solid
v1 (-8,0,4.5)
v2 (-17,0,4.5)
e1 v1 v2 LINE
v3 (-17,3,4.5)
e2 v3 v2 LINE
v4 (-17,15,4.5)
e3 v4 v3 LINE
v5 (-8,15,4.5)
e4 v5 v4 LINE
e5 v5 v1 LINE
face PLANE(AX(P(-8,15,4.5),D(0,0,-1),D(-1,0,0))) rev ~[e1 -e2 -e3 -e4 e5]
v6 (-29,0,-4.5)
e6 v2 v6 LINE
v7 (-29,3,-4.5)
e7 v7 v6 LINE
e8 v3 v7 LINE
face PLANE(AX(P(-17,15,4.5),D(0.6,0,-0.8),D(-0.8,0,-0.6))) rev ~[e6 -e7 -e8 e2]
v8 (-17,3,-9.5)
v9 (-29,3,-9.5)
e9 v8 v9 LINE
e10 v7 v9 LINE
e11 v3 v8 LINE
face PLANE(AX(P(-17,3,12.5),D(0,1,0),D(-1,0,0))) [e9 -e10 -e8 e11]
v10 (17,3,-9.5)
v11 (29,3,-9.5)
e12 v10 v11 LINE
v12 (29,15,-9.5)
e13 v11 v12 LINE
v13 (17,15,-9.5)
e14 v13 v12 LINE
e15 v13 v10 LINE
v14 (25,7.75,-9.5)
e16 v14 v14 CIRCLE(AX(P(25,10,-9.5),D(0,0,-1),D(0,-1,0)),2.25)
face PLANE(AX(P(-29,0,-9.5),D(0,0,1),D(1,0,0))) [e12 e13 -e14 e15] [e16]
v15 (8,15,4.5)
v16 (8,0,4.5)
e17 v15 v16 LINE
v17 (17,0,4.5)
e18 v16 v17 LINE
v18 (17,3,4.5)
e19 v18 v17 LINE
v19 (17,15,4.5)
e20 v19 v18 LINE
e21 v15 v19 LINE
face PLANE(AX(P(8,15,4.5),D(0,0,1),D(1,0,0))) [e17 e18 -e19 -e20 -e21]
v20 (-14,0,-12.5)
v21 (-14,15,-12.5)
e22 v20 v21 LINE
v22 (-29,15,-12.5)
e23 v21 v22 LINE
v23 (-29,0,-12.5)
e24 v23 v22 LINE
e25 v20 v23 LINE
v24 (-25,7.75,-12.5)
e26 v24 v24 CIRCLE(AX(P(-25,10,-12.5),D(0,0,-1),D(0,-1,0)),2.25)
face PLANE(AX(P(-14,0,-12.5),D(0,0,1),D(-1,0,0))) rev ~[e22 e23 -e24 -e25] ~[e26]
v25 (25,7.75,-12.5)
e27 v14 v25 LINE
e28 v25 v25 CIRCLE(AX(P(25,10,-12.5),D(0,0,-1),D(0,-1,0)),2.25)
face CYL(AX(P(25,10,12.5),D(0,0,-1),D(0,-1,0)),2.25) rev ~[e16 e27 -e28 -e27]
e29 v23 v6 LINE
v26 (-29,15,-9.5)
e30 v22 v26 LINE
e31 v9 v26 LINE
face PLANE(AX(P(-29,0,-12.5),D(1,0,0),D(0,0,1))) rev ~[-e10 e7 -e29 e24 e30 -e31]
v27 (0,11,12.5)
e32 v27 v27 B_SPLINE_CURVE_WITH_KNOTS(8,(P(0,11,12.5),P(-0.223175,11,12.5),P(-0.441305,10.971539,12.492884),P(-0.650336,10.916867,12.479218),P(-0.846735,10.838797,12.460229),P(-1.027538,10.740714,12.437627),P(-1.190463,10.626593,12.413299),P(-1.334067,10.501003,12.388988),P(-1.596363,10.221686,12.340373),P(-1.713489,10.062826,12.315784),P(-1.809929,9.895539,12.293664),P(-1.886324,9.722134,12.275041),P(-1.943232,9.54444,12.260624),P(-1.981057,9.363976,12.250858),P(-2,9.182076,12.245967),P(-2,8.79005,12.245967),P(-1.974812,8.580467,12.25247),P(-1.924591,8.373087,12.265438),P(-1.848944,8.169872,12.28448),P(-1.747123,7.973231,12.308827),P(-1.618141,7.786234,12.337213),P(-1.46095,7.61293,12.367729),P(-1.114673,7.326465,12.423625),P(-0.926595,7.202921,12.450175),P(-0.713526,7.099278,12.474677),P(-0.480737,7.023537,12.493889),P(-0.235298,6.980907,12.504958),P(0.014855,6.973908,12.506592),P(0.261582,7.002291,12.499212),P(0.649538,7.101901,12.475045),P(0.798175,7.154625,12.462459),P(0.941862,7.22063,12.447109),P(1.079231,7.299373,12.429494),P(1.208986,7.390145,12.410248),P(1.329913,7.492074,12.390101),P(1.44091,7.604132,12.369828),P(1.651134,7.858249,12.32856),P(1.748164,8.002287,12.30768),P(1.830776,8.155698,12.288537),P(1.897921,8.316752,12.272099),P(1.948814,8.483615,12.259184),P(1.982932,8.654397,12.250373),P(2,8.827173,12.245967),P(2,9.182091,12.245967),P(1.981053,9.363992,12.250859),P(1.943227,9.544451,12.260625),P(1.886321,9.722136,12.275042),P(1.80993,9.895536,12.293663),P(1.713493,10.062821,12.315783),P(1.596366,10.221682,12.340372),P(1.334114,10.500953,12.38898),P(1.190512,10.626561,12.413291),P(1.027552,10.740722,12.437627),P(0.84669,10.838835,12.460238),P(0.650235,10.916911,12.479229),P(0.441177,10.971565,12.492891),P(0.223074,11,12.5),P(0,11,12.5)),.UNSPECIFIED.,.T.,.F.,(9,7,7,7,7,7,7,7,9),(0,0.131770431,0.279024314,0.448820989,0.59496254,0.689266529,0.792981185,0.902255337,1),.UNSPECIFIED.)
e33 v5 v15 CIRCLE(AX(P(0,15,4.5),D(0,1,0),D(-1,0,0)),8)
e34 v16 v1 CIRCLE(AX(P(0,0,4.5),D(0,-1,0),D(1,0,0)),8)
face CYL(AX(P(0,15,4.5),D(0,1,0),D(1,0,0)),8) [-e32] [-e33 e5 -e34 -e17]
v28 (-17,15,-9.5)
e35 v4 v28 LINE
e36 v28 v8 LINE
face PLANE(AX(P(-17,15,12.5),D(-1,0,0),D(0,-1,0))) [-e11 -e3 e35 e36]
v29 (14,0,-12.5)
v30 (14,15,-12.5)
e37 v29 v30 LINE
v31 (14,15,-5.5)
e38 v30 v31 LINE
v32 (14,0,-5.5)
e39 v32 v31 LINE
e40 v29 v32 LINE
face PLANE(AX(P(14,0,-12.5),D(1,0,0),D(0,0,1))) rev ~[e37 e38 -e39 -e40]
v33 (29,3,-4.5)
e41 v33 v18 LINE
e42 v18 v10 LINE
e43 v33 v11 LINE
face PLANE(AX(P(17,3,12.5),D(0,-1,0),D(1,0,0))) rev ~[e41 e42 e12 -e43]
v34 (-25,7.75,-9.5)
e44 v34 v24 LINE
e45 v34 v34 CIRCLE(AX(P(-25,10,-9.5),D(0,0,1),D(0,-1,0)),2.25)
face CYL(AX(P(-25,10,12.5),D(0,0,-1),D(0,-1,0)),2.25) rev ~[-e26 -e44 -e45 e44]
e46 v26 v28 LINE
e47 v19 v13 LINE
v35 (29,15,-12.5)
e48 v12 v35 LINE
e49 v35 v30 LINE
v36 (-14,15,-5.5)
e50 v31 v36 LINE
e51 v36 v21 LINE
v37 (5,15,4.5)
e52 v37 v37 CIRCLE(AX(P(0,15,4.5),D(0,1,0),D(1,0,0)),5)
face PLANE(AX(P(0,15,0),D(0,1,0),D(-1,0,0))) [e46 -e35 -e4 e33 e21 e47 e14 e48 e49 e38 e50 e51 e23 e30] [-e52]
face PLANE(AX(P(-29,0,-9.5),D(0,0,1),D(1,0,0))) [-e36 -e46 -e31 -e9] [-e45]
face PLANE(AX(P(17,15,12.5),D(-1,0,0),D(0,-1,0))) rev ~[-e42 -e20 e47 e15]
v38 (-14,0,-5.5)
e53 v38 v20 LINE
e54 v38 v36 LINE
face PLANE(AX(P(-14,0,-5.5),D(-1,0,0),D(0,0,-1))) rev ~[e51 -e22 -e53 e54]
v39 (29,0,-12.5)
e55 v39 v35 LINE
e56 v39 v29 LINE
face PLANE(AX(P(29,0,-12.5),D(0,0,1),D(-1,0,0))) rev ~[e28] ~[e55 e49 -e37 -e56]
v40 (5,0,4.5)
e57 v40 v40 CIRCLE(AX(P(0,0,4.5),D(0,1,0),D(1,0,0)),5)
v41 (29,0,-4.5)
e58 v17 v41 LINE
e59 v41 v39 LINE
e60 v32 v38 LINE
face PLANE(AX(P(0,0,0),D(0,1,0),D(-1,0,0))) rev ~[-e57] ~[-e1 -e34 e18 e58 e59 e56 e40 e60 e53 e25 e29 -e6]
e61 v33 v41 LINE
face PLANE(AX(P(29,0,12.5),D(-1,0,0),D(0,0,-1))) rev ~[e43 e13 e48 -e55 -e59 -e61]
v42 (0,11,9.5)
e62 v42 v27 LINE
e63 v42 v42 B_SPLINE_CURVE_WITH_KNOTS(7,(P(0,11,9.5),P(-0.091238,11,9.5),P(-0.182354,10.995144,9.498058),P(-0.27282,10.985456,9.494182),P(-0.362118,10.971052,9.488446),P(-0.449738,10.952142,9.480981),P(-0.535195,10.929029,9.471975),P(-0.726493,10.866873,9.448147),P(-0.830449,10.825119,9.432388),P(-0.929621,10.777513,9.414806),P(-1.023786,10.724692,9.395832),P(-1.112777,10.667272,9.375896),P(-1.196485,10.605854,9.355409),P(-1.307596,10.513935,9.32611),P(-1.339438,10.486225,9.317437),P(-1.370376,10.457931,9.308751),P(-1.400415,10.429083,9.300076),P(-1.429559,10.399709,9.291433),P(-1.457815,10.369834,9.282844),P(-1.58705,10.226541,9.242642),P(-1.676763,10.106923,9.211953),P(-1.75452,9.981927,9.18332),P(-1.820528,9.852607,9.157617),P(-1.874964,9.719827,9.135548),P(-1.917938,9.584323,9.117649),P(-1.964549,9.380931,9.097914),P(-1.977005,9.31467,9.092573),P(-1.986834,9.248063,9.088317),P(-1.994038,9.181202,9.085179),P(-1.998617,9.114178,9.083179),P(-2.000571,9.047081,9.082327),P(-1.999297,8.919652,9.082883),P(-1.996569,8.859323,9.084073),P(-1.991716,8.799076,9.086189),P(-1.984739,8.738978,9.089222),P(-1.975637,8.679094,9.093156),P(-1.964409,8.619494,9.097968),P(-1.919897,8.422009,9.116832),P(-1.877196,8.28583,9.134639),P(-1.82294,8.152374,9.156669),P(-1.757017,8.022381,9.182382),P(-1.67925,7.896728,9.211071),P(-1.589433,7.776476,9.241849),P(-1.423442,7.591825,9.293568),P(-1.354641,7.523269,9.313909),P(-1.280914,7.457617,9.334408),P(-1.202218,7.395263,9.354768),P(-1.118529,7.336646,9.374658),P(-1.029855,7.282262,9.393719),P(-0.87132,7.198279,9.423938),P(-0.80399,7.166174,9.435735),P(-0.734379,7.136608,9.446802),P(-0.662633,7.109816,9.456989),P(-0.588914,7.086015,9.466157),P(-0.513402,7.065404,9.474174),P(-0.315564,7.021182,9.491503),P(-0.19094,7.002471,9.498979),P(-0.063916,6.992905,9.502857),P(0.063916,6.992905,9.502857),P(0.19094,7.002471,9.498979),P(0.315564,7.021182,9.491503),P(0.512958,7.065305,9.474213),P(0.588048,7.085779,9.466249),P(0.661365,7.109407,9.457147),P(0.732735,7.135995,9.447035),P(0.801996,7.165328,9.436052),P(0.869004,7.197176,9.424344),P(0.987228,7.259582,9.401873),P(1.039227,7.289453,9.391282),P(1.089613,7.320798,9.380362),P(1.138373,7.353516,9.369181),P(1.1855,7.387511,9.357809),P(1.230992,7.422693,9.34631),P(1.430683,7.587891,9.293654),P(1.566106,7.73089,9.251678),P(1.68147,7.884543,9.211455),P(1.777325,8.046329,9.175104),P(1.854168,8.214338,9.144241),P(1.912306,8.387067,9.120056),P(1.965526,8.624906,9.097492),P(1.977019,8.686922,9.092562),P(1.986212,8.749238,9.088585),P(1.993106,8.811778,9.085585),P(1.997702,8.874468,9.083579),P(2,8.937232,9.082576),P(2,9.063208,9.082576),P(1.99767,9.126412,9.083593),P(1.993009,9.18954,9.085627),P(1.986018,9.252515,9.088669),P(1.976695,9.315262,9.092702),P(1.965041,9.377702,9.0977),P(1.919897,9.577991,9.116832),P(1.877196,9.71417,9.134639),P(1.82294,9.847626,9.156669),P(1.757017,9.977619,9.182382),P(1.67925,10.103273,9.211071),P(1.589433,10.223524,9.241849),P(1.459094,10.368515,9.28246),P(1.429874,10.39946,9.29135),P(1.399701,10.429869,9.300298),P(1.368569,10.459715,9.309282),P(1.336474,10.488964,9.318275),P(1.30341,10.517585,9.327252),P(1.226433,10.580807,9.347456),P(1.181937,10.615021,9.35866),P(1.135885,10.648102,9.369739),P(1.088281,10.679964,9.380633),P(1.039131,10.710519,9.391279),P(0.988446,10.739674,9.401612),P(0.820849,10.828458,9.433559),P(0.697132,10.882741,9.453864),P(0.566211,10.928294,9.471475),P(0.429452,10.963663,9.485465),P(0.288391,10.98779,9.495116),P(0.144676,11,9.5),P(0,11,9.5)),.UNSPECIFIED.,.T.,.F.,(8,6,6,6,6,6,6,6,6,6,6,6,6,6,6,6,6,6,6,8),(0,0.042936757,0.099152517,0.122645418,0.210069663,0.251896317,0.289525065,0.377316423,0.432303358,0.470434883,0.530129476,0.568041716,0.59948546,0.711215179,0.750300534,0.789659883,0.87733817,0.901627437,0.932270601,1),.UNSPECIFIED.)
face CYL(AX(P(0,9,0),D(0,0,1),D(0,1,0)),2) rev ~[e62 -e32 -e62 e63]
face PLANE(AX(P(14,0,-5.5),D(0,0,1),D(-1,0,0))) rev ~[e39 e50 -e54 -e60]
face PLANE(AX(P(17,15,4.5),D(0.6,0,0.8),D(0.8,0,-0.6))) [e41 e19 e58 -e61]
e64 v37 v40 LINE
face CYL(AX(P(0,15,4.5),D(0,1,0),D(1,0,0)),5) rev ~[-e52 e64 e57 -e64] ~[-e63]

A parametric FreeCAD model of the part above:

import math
import FreeCAD as App
import Part
import Sketcher

doc = App.newDocument("Part")
body = doc.addObject("PartDesign::Body", "Body")

# Sketch on XZ plane
sketch1 = body.newObject("Sketcher::SketchObject", "Sketch")
sketch1.AttachmentSupport = (doc.getObject("XZ_Plane"), [""])
sketch1.MapMode = "FlatFace"
sketch1.addGeometry([
    Part.LineSegment(App.Vector(-14, -5.5, 0), App.Vector(-14, -12.5, 0)),  # 0
    Part.LineSegment(App.Vector(-14, -12.5, 0), App.Vector(-29, -12.5, 0)),  # 1
    Part.LineSegment(App.Vector(-29, -12.5, 0), App.Vector(-29, 12.5, 0)),  # 2
    Part.LineSegment(App.Vector(-29, 12.5, 0), App.Vector(29, 12.5, 0)),  # 3
    Part.LineSegment(App.Vector(29, 12.5, 0), App.Vector(29, -12.5, 0)),  # 4
    Part.LineSegment(App.Vector(29, -12.5, 0), App.Vector(14, -12.5, 0)),  # 5
    Part.LineSegment(App.Vector(14, -12.5, 0), App.Vector(14, -5.5, 0)),  # 6
    Part.LineSegment(App.Vector(14, -5.5, 0), App.Vector(-14, -5.5, 0)),  # 7
], False)
sketch1.addConstraint([
    Sketcher.Constraint("Coincident", 0, 2, 1, 1),
    Sketcher.Constraint("Coincident", 1, 2, 2, 1),
    Sketcher.Constraint("Coincident", 2, 2, 3, 1),
    Sketcher.Constraint("Coincident", 3, 2, 4, 1),
    Sketcher.Constraint("Coincident", 4, 2, 5, 1),
    Sketcher.Constraint("Coincident", 5, 2, 6, 1),
    Sketcher.Constraint("Coincident", 6, 2, 7, 1),
    Sketcher.Constraint("Coincident", 7, 2, 0, 1),
    Sketcher.Constraint("Vertical", 0),
    Sketcher.Constraint("Horizontal", 1),
    Sketcher.Constraint("Vertical", 2),
    Sketcher.Constraint("Horizontal", 3),
    Sketcher.Constraint("Vertical", 4),
    Sketcher.Constraint("Horizontal", 5),
    Sketcher.Constraint("Vertical", 6),
    Sketcher.Constraint("Horizontal", 7),
    Sketcher.Constraint("Symmetric", 1, 2, 3, 2, -1, 1),
    Sketcher.Constraint("Symmetric", 0, 2, 5, 2, -2),
    Sketcher.Constraint("DistanceX", 1, 2, 1, 1, 15.0),
    Sketcher.Constraint("DistanceX", 7, 2, 7, 1, 28.0),
    Sketcher.Constraint("DistanceY", 0, 2, 0, 1, 7.0),
    Sketcher.Constraint("DistanceY", 2, 1, 2, 2, 25.0),
])
pad1 = body.newObject("PartDesign::Pad", "Pad")
pad1.Profile = sketch1
pad1.Length = 15
pad1.Reversed = True

# Sketch on XY plane
sketch2 = body.newObject("Sketcher::SketchObject", "Sketch001")
sketch2.AttachmentSupport = (doc.getObject("XY_Plane"), [""])
sketch2.MapMode = "FlatFace"
sketch2.AttachmentOffset = App.Placement(App.Vector(0, 0, 12.5), App.Rotation())
sketch2.addGeometry([
    Part.Circle(App.Vector(-25, 10, 0), App.Vector(0, 0, 1), 2.25),
    Part.Circle(App.Vector(25, 10, 0), App.Vector(0, 0, 1), 2.25),
], False)
sketch2.addConstraint([
    Sketcher.Constraint("Equal", 0, 1),
    Sketcher.Constraint("Symmetric", 0, 3, 1, 3, -2),
    Sketcher.Constraint("Diameter", 0, 4.5),
    Sketcher.Constraint("DistanceX", 0, 3, -1, 1, 25.0),
    Sketcher.Constraint("DistanceY", -1, 1, 0, 3, 10.0),
])
doc.recompute()
hole = body.newObject("PartDesign::Hole", "Hole")
hole.Profile = sketch2
hole.ThreadType = "None"
hole.Diameter = 4.5
hole.DepthType = "ThroughAll"

# Sketch on XY plane
sketch3 = body.newObject("Sketcher::SketchObject", "Sketch002")
sketch3.AttachmentSupport = (doc.getObject("XY_Plane"), [""])
sketch3.MapMode = "FlatFace"
sketch3.AttachmentOffset = App.Placement(App.Vector(0, 0, 12.5), App.Rotation())
sketch3.addGeometry([
    Part.LineSegment(App.Vector(-29, 15, 0), App.Vector(-29, 3, 0)),  # 0
    Part.LineSegment(App.Vector(-29, 3, 0), App.Vector(-17, 3, 0)),  # 1
    Part.LineSegment(App.Vector(-17, 3, 0), App.Vector(-17, 15, 0)),  # 2
    Part.LineSegment(App.Vector(-17, 15, 0), App.Vector(-29, 15, 0)),  # 3
    Part.Circle(App.Vector(-25, 10, 0), App.Vector(0, 0, 1), 2.25),  # 4
    Part.LineSegment(App.Vector(17, 3, 0), App.Vector(29, 3, 0)),  # 5
    Part.LineSegment(App.Vector(29, 3, 0), App.Vector(29, 15, 0)),  # 6
    Part.LineSegment(App.Vector(29, 15, 0), App.Vector(17, 15, 0)),  # 7
    Part.LineSegment(App.Vector(17, 15, 0), App.Vector(17, 3, 0)),  # 8
    Part.Circle(App.Vector(25, 10, 0), App.Vector(0, 0, 1), 2.25),  # 9
], False)
sketch3.addConstraint([
    Sketcher.Constraint("Coincident", 0, 2, 1, 1),
    Sketcher.Constraint("Coincident", 1, 2, 2, 1),
    Sketcher.Constraint("Coincident", 2, 2, 3, 1),
    Sketcher.Constraint("Coincident", 3, 2, 0, 1),
    Sketcher.Constraint("Coincident", 5, 2, 6, 1),
    Sketcher.Constraint("Coincident", 6, 2, 7, 1),
    Sketcher.Constraint("Coincident", 7, 2, 8, 1),
    Sketcher.Constraint("Coincident", 8, 2, 5, 1),
    Sketcher.Constraint("Vertical", 0),
    Sketcher.Constraint("Horizontal", 1),
    Sketcher.Constraint("Vertical", 2),
    Sketcher.Constraint("Horizontal", 3),
    Sketcher.Constraint("Horizontal", 5),
    Sketcher.Constraint("Vertical", 6),
    Sketcher.Constraint("Horizontal", 7),
    Sketcher.Constraint("Vertical", 8),
    Sketcher.Constraint("Equal", 4, 9),
    Sketcher.Constraint("Symmetric", 4, 3, 9, 3, -2),
    Sketcher.Constraint("Symmetric", 0, 2, 5, 2, -2),
    Sketcher.Constraint("Symmetric", 2, 2, 7, 2, -2),
    Sketcher.Constraint("Equal", 7, 0),
    Sketcher.Constraint("DistanceY", -1, 1, 0, 2, 3.0),
    Sketcher.Constraint("Diameter", 4, 4.5),
    Sketcher.Constraint("DistanceX", 1, 1, 1, 2, 12.0),
    Sketcher.Constraint("DistanceX", 4, 3, -1, 1, 25.0),
    Sketcher.Constraint("DistanceY", -1, 1, 4, 3, 10.0),
    Sketcher.Constraint("DistanceX", 0, 2, -1, 1, 29.0),
])
pocket1 = body.newObject("PartDesign::Pocket", "Pocket")
pocket1.Profile = sketch3
pocket1.Length = 22

# Sketch on XZ plane
sketch4 = body.newObject("Sketcher::SketchObject", "Sketch003")
sketch4.AttachmentSupport = (doc.getObject("XZ_Plane"), [""])
sketch4.MapMode = "FlatFace"
sketch4.AttachmentOffset = App.Placement(App.Vector(0, 0, -15), App.Rotation())
sketch4.addGeometry(Part.Circle(App.Vector(0, 4.5, 0), App.Vector(0, 0, 1), 5), False)
sketch4.addConstraint([
    Sketcher.Constraint("PointOnObject", 0, 3, -2),
    Sketcher.Constraint("Diameter", 0, 10.0),
    Sketcher.Constraint("DistanceY", -1, 1, 0, 3, 4.5),
])
pocket2 = body.newObject("PartDesign::Pocket", "Pocket001")
pocket2.Profile = sketch4
pocket2.Type = "ThroughAll"
pocket2.Reversed = True

# Sketch on XZ plane
sketch5 = body.newObject("Sketcher::SketchObject", "Sketch004")
sketch5.AttachmentSupport = (doc.getObject("XZ_Plane"), [""])
sketch5.MapMode = "FlatFace"
sketch5.AttachmentOffset = App.Placement(App.Vector(0, 0, -15), App.Rotation())
sketch5.addGeometry([
    Part.LineSegment(App.Vector(17, 4.5, 0), App.Vector(8, 4.5, 0)),  # 0
    Part.ArcOfCircle(Part.Circle(App.Vector(0, 4.5, 0), App.Vector(0, 0, 1), 8), math.radians(0), math.radians(90)),  # 1
    Part.LineSegment(App.Vector(0, 12.5, 0), App.Vector(29, 12.5, 0)),  # 2
    Part.LineSegment(App.Vector(29, 12.5, 0), App.Vector(29, -4.5, 0)),  # 3
    Part.LineSegment(App.Vector(29, -4.5, 0), App.Vector(17, 4.5, 0)),  # 4
    Part.ArcOfCircle(Part.Circle(App.Vector(0, 4.5, 0), App.Vector(0, 0, 1), 8), math.radians(90), math.radians(180)),  # 5
    Part.LineSegment(App.Vector(-8, 4.5, 0), App.Vector(-17, 4.5, 0)),  # 6
    Part.LineSegment(App.Vector(-17, 4.5, 0), App.Vector(-29, -4.5, 0)),  # 7
    Part.LineSegment(App.Vector(-29, -4.5, 0), App.Vector(-29, 12.5, 0)),  # 8
    Part.LineSegment(App.Vector(-29, 12.5, 0), App.Vector(0, 12.5, 0)),  # 9
], False)
sketch5.addConstraint([
    Sketcher.Constraint("Coincident", 0, 2, 1, 1),
    Sketcher.Constraint("Tangent", 1, 2, 2, 1),
    Sketcher.Constraint("Coincident", 2, 2, 3, 1),
    Sketcher.Constraint("Coincident", 3, 2, 4, 1),
    Sketcher.Constraint("Coincident", 4, 2, 0, 1),
    Sketcher.Constraint("Coincident", 5, 2, 6, 1),
    Sketcher.Constraint("Coincident", 6, 2, 7, 1),
    Sketcher.Constraint("Coincident", 7, 2, 8, 1),
    Sketcher.Constraint("Coincident", 8, 2, 9, 1),
    Sketcher.Constraint("Tangent", 9, 2, 5, 1),
    Sketcher.Constraint("Horizontal", 0),
    Sketcher.Constraint("Horizontal", 2),
    Sketcher.Constraint("Vertical", 3),
    Sketcher.Constraint("Horizontal", 6),
    Sketcher.Constraint("Vertical", 8),
    Sketcher.Constraint("Horizontal", 9),
    Sketcher.Constraint("Coincident", 5, 3, 1, 3),
    Sketcher.Constraint("Equal", 1, 5),
    Sketcher.Constraint("Symmetric", 0, 2, 5, 2, -2),
    Sketcher.Constraint("Symmetric", 3, 2, 7, 2, -2),
    Sketcher.Constraint("Horizontal", 5, 3, 0, 2),
    Sketcher.Constraint("Equal", 0, 6),
    Sketcher.Constraint("Radius", 1, 8.0),
    Sketcher.Constraint("DistanceX", 0, 2, 0, 1, 9.0),
    Sketcher.Constraint("DistanceX", 2, 1, 2, 2, 29.0),
    Sketcher.Constraint("DistanceY", 3, 2, 3, 1, 17.0),
    Sketcher.Constraint("DistanceY", -1, 1, 1, 3, 4.5),
])
pocket3 = body.newObject("PartDesign::Pocket", "Pocket002")
pocket3.Profile = sketch5
pocket3.Type = "ThroughAll"
pocket3.Reversed = True

# Sketch on XY plane
sketch6 = body.newObject("Sketcher::SketchObject", "Sketch005")
sketch6.AttachmentSupport = (doc.getObject("XY_Plane"), [""])
sketch6.MapMode = "FlatFace"
sketch6.addGeometry(Part.Circle(App.Vector(0, 9, 0), App.Vector(0, 0, 1), 2), False)
sketch6.addConstraint([
    Sketcher.Constraint("PointOnObject", 0, 3, -2),
    Sketcher.Constraint("Diameter", 0, 4.0),
    Sketcher.Constraint("DistanceY", -1, 1, 0, 3, 9.0),
])
doc.recompute()
hole2 = body.newObject("PartDesign::Hole", "Hole001")
hole2.Profile = sketch6
hole2.ThreadType = "None"
hole2.Diameter = 4
hole2.DepthType = "ThroughAll"
hole2.Reversed = True

doc.recompute()
